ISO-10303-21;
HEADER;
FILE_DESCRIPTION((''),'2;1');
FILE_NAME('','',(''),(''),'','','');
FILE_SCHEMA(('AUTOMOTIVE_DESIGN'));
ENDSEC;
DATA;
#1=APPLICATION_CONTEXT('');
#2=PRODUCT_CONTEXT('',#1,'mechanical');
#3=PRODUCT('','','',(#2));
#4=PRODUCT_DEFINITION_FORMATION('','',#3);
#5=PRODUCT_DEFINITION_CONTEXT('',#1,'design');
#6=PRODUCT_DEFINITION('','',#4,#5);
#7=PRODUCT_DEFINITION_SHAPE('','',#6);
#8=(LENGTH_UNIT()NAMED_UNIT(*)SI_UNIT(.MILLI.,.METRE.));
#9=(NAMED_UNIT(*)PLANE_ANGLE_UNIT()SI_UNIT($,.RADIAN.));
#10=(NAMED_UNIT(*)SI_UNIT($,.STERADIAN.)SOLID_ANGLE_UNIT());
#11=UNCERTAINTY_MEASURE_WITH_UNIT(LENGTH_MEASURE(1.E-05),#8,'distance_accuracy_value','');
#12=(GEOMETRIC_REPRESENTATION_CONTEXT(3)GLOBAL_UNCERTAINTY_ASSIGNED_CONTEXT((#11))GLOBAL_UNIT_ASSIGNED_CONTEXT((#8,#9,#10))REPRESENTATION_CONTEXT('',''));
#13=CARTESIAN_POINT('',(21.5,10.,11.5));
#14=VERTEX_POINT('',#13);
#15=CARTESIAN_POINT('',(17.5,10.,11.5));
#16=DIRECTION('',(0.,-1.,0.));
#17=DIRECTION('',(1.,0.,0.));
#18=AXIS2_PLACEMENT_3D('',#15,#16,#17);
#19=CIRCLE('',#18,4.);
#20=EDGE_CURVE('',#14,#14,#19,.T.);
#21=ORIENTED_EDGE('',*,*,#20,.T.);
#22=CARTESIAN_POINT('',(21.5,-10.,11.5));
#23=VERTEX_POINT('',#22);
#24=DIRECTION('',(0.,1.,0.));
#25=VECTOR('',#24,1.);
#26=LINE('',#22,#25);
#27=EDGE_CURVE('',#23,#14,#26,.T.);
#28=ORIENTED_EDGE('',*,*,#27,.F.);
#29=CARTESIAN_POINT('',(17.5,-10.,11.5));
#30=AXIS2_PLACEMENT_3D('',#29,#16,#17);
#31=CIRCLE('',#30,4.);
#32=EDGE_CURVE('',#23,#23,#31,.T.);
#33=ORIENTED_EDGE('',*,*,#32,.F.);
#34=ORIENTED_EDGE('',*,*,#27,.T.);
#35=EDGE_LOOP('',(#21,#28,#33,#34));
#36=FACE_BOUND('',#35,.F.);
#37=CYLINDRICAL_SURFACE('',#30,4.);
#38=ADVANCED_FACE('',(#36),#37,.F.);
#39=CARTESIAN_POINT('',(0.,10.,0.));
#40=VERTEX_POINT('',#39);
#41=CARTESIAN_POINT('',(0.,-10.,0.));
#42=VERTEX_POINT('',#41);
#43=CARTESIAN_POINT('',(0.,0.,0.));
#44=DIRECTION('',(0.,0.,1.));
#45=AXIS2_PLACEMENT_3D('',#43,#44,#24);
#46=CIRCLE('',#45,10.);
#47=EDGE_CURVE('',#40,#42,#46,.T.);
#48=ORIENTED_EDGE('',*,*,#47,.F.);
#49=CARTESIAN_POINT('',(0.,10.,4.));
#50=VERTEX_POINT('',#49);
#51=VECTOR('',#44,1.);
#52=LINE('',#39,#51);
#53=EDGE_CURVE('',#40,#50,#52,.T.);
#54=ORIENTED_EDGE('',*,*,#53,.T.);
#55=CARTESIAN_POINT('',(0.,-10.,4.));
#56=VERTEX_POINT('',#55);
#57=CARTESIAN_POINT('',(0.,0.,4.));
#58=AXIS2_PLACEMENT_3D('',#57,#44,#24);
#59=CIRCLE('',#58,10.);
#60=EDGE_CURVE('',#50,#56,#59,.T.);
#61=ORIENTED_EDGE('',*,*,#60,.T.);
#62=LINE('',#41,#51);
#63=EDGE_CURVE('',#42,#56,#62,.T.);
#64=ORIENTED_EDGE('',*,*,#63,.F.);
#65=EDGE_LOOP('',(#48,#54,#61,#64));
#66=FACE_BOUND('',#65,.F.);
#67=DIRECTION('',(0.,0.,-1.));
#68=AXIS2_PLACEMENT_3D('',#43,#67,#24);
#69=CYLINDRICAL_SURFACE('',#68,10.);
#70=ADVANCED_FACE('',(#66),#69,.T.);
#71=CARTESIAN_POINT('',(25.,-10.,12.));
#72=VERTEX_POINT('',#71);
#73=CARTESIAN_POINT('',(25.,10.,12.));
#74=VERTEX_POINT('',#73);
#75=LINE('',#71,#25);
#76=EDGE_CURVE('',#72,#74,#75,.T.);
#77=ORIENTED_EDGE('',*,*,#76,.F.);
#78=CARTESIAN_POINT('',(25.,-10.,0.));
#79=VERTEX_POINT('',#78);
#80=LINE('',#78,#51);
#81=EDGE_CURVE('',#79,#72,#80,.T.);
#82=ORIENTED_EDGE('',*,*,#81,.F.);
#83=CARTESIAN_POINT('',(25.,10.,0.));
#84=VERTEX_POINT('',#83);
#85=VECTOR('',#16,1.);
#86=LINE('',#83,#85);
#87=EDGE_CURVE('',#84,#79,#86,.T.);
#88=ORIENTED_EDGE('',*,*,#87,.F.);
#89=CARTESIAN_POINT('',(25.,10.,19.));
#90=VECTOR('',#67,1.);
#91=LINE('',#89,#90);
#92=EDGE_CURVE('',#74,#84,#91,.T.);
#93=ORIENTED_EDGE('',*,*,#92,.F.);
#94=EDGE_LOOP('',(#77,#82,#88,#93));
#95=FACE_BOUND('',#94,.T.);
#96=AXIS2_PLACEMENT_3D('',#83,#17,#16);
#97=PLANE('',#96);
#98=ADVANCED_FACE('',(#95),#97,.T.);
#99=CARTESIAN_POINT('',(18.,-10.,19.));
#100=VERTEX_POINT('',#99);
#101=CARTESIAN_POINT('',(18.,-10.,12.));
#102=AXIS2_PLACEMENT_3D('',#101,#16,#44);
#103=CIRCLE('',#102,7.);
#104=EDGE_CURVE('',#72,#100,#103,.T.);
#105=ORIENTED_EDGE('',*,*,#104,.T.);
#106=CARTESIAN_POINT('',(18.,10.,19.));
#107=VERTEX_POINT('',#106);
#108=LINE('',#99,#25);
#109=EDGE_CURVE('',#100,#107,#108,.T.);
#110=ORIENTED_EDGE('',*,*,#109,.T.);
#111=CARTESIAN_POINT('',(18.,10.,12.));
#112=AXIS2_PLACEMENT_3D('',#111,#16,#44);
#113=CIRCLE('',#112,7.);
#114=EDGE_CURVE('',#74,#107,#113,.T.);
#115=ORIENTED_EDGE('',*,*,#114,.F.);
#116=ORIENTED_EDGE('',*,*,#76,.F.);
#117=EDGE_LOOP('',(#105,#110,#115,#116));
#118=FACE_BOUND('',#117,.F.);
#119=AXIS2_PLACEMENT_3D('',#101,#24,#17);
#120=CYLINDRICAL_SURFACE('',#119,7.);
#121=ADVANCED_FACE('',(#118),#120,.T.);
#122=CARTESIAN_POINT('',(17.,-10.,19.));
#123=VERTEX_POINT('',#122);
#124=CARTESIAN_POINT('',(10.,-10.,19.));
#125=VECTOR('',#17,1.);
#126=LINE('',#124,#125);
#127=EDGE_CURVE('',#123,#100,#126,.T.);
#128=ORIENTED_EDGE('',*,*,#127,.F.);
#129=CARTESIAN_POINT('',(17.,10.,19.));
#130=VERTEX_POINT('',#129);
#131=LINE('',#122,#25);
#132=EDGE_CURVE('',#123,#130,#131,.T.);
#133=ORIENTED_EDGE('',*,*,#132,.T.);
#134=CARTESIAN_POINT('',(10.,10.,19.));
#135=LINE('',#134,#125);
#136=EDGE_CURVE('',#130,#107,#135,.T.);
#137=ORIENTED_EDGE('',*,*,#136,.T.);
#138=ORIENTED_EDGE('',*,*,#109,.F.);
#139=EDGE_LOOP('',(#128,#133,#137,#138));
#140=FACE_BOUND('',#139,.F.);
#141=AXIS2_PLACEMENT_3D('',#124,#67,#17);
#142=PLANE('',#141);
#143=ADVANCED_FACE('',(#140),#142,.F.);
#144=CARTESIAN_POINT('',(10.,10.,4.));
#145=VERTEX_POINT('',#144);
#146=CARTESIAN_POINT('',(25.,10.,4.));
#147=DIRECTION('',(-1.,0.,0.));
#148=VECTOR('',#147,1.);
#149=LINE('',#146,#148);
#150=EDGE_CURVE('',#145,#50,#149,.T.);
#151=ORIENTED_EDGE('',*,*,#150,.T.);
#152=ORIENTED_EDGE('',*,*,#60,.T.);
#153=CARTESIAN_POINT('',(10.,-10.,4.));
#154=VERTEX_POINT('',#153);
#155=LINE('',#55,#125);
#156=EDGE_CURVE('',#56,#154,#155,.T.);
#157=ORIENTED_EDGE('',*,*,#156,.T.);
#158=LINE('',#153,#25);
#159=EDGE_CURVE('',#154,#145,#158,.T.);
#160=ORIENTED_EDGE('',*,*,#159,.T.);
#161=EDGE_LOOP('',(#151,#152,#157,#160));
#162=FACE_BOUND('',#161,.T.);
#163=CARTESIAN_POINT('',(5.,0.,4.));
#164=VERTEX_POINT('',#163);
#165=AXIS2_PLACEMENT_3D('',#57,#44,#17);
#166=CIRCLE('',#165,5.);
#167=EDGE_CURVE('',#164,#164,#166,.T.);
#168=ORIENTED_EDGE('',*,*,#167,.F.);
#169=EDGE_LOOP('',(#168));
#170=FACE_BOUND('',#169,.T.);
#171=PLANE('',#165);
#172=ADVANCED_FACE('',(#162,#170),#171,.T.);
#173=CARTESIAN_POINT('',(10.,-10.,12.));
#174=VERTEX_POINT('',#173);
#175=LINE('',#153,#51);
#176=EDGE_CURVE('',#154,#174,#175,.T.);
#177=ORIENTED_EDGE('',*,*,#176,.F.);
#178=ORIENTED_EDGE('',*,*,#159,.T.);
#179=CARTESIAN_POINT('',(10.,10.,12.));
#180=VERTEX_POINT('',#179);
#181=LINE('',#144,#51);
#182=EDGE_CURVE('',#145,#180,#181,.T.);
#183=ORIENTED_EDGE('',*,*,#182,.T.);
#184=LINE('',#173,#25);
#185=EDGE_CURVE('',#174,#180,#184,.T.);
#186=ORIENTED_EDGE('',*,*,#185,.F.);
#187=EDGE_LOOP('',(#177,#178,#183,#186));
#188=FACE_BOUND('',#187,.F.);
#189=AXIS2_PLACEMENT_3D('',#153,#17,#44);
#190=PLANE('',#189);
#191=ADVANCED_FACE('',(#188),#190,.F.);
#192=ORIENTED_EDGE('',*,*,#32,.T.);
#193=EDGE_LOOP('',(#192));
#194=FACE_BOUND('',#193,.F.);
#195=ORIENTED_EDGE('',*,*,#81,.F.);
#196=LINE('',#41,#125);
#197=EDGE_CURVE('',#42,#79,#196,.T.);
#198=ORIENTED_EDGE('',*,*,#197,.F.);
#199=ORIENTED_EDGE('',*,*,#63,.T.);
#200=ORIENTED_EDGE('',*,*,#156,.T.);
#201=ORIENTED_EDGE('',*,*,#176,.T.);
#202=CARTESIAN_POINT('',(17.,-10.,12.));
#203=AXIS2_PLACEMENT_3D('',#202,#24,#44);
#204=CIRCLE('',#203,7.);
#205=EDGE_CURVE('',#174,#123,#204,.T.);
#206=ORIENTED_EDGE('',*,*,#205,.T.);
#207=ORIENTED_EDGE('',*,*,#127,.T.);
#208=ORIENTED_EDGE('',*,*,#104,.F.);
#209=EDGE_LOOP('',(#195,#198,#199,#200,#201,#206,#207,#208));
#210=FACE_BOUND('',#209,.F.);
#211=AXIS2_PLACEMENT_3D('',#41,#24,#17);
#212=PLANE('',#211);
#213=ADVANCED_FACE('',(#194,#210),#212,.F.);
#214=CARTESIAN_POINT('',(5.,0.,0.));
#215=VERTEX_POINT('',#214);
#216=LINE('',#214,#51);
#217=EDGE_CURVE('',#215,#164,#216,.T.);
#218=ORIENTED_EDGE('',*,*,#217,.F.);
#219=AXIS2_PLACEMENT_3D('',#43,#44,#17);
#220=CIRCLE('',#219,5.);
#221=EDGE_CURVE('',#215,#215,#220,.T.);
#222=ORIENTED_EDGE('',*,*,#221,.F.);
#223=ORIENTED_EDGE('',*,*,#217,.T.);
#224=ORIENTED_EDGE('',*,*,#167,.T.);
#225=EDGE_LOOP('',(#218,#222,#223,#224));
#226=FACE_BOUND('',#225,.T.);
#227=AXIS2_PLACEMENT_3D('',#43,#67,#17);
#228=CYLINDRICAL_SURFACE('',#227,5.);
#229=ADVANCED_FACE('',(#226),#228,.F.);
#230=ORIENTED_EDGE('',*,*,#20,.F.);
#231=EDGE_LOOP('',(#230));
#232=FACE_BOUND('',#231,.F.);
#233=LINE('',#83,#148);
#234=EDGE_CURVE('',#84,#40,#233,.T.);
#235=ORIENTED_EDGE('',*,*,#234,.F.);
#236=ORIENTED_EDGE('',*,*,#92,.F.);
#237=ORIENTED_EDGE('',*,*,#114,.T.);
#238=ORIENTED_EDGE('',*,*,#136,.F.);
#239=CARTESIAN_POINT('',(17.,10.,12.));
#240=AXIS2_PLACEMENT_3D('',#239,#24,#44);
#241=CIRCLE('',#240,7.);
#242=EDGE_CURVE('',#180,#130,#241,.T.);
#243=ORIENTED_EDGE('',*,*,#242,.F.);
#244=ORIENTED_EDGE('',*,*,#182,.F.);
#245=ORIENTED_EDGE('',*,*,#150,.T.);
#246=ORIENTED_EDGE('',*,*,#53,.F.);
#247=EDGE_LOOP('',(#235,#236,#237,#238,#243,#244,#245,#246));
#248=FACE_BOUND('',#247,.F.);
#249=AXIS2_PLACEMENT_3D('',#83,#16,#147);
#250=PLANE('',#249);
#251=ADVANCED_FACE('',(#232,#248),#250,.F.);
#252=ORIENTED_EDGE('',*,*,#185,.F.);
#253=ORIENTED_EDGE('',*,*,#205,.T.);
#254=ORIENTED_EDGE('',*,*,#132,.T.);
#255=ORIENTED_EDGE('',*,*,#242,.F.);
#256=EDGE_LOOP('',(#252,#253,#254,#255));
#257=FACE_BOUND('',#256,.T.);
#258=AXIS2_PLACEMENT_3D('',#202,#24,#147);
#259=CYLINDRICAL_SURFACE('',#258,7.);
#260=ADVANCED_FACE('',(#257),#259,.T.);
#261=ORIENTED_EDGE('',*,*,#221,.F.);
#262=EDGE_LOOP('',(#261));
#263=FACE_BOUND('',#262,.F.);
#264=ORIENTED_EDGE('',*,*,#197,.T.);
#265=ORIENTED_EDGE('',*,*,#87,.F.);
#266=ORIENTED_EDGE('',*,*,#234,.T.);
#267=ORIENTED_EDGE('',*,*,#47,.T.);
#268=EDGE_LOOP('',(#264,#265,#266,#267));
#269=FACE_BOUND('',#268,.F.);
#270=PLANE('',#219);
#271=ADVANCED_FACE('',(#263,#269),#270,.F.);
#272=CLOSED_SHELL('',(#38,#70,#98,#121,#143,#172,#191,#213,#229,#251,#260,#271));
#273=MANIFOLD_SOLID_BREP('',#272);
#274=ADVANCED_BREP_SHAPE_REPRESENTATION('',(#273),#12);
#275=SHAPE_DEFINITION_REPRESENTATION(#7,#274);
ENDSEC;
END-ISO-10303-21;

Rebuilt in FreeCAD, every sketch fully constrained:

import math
import FreeCAD as App
import Part
import Sketcher

V = App.Vector


def edges_at(feature, points):
    """Names of the edges that pass closest to the given points."""
    edges = feature.Shape.Edges
    near = lambda p: min(range(len(edges)), key=lambda i: edges[i].distToShape(Part.Vertex(*p))[0])
    return sorted({f"Edge{near(p) + 1}" for p in points})

doc = App.newDocument("Part")
params = doc.addObject("Spreadsheet::Sheet", "Params")
for row, (alias, value) in enumerate([
    ("sketch1_diameter", "10 mm"),
    ("sketch1_radius", "10 mm"),
    ("sketch1_width", "25 mm"),
    ("pad1_length", "4 mm"),
    ("sketch2_diameter", "8 mm"),
    ("sketch2_width", "15 mm"),
    ("pad2_length", "20 mm"),
    ("fillet_radius", "7 mm"),
], start=1):
    params.set(f"A{row}", alias)
    params.set(f"B{row}", "=" + value)
    params.setAlias(f"B{row}", alias)

body = doc.addObject("PartDesign::Body", "Body")

# Sketch on XY plane
sketch1 = doc.addObject("Sketcher::SketchObject", "Sketch")
body.addObject(sketch1)
sketch1.AttachmentSupport = (doc.XY_Plane, [""])
sketch1.MapMode = "FlatFace"
sketch1.addGeometry(Part.ArcOfCircle(Part.Circle(V(0, 0, 0), V(0, 0, 1), 10), math.radians(90), math.radians(270)), False)
sketch1.addGeometry(Part.LineSegment(V(0, -10, 0), V(25, -10, 0)), False)
sketch1.addGeometry(Part.LineSegment(V(25, -10, 0), V(25, 10, 0)), False)
sketch1.addGeometry(Part.LineSegment(V(25, 10, 0), V(0, 10, 0)), False)
sketch1.addGeometry(Part.Circle(V(0, 0, 0), V(0, 0, 1), 5), False)
sketch1.addConstraint(Sketcher.Constraint("Tangent", 0, 2, 1, 1))
sketch1.addConstraint(Sketcher.Constraint("Coincident", 1, 2, 2, 1))
sketch1.addConstraint(Sketcher.Constraint("Coincident", 2, 2, 3, 1))
sketch1.addConstraint(Sketcher.Constraint("Tangent", 3, 2, 0, 1))
sketch1.addConstraint(Sketcher.Constraint("Horizontal", 1))
sketch1.addConstraint(Sketcher.Constraint("Vertical", 2))
sketch1.addConstraint(Sketcher.Constraint("Horizontal", 3))
sketch1.addConstraint(Sketcher.Constraint("Coincident", 0, 3, -1, 1))
sketch1.addConstraint(Sketcher.Constraint("Coincident", 4, 3, -1, 1))
sketch1.addConstraint(Sketcher.Constraint("Diameter", 4, 10.0))
sketch1.addConstraint(Sketcher.Constraint("Radius", 0, 10.0))
sketch1.addConstraint(Sketcher.Constraint("DistanceX", 1, 1, 1, 2, 25.0))
sketch1.setExpression("Constraints[9]", "Params.sketch1_diameter")
sketch1.setExpression("Constraints[10]", "Params.sketch1_radius")
sketch1.setExpression("Constraints[11]", "Params.sketch1_width")
pad1 = doc.addObject("PartDesign::Pad", "Pad")
body.addObject(pad1)
pad1.Profile = sketch1
pad1.setExpression("Length", "Params.pad1_length")

# Sketch on XZ plane
sketch2 = doc.addObject("Sketcher::SketchObject", "Sketch001")
body.addObject(sketch2)
sketch2.AttachmentSupport = (doc.XZ_Plane, [""])
sketch2.MapMode = "FlatFace"
sketch2.AttachmentOffset = App.Placement(V(0, 0, 10), App.Rotation())
sketch2.addGeometry(Part.LineSegment(V(10, 19, 0), V(10, 4, 0)), False)
sketch2.addGeometry(Part.LineSegment(V(10, 4, 0), V(25, 4, 0)), False)
sketch2.addGeometry(Part.LineSegment(V(25, 4, 0), V(25, 19, 0)), False)
sketch2.addGeometry(Part.LineSegment(V(25, 19, 0), V(10, 19, 0)), False)
sketch2.addGeometry(Part.Circle(V(17.5, 11.5, 0), V(0, 0, 1), 4), False)
sketch2.addConstraint(Sketcher.Constraint("Coincident", 0, 2, 1, 1))
sketch2.addConstraint(Sketcher.Constraint("Coincident", 1, 2, 2, 1))
sketch2.addConstraint(Sketcher.Constraint("Coincident", 2, 2, 3, 1))
sketch2.addConstraint(Sketcher.Constraint("Coincident", 3, 2, 0, 1))
sketch2.addConstraint(Sketcher.Constraint("Vertical", 0))
sketch2.addConstraint(Sketcher.Constraint("Horizontal", 1))
sketch2.addConstraint(Sketcher.Constraint("Vertical", 2))
sketch2.addConstraint(Sketcher.Constraint("Horizontal", 3))
sketch2.addConstraint(Sketcher.Constraint("Equal", 3, 0))
sketch2.addConstraint(Sketcher.Constraint("Diameter", 4, 8.0))
sketch2.addConstraint(Sketcher.Constraint("DistanceX", 1, 1, 1, 2, 15.0))
sketch2.addConstraint(Sketcher.Constraint("DistanceX", -1, 1, 0, 2, 10.0))
sketch2.addConstraint(Sketcher.Constraint("DistanceY", -1, 1, 0, 2, 4.0))
sketch2.addConstraint(Sketcher.Constraint("DistanceX", -1, 1, 4, 3, 17.5))
sketch2.addConstraint(Sketcher.Constraint("DistanceY", -1, 1, 4, 3, 11.5))
sketch2.setExpression("Constraints[9]", "Params.sketch2_diameter")
sketch2.setExpression("Constraints[10]", "Params.sketch2_width")
pad2 = doc.addObject("PartDesign::Pad", "Pad001")
body.addObject(pad2)
pad2.Profile = sketch2
pad2.setExpression("Length", "Params.pad2_length")
pad2.Reversed = True
doc.recompute()

fillet = doc.addObject("PartDesign::Fillet", "Fillet")
body.addObject(fillet)
fillet.Base = (pad2, edges_at(pad2, [(25, 0, 19), (10, 0, 19)]))
fillet.setExpression("Radius", "Params.fillet_radius")

doc.recompute()
